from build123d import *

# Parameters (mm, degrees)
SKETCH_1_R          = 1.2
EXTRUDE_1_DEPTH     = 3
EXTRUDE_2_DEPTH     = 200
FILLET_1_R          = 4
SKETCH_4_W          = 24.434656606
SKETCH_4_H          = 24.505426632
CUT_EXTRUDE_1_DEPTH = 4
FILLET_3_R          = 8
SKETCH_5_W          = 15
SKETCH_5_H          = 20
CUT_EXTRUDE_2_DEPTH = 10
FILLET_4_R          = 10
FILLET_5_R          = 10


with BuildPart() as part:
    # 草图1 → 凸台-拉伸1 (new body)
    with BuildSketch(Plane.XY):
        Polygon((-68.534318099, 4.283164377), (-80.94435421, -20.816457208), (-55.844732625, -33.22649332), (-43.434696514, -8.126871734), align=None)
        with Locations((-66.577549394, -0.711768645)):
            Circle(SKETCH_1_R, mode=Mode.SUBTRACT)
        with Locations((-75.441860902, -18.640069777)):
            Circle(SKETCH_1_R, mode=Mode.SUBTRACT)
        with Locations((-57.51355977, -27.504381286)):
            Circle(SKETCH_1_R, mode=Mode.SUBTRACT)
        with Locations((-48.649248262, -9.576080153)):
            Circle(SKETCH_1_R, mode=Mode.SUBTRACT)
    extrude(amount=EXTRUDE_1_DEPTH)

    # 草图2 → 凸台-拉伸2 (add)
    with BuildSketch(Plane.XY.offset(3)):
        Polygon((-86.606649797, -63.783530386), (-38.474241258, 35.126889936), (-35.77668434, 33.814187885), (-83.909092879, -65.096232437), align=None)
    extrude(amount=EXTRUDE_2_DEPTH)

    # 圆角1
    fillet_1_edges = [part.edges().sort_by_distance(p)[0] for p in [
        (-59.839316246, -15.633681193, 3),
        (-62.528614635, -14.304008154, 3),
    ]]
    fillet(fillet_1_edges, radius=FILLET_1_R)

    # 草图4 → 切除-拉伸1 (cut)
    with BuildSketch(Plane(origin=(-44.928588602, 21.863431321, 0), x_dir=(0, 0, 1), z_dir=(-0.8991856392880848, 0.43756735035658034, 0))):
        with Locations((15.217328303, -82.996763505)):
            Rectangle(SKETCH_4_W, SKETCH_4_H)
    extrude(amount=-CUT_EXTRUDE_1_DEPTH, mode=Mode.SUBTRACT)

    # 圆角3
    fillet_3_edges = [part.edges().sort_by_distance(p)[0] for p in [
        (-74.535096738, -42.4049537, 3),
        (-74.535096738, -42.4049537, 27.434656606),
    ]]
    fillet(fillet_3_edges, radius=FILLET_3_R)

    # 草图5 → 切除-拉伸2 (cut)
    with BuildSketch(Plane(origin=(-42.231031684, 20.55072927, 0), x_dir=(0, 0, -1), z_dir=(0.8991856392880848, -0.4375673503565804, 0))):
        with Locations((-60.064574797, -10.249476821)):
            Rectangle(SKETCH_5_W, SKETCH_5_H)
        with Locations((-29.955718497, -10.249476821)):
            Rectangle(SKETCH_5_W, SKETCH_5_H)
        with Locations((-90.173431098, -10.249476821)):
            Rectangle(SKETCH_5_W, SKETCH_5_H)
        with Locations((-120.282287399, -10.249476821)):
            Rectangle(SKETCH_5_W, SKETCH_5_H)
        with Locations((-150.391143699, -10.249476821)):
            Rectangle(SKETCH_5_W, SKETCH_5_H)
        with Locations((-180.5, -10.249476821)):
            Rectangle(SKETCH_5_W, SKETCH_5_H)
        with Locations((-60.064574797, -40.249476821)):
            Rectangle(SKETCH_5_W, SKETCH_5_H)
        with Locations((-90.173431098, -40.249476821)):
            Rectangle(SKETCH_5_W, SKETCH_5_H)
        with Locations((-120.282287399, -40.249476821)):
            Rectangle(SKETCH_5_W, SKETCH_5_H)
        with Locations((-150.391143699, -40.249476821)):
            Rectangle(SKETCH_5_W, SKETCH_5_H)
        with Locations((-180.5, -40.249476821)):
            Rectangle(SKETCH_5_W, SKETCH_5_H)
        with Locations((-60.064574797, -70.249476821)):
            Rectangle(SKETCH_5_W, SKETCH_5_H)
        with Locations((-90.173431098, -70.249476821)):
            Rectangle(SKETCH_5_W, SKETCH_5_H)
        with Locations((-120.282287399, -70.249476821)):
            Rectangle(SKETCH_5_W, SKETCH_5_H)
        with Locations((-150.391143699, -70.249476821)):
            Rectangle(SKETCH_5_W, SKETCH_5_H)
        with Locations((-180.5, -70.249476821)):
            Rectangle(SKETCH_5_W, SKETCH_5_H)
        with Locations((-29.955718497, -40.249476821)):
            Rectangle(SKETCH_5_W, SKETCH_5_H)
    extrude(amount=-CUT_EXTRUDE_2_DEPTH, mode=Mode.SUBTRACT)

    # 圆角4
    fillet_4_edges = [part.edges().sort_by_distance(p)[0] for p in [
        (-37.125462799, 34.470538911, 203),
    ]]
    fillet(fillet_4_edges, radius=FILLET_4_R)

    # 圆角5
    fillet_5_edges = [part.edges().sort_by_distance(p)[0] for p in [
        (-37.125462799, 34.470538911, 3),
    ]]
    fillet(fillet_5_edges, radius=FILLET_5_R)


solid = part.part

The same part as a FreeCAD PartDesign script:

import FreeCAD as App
import Part
import Sketcher
from FreeCAD import Vector


def edges_at(feature, points):
    """Names of the edges that pass closest to the given points."""
    edges = feature.Shape.Edges
    near = lambda p: min(range(len(edges)), key=lambda i: edges[i].distToShape(Part.Vertex(*p))[0])
    return sorted({f"Edge{near(p) + 1}" for p in points})


def add_polygon(sketch, points):
    """Adds a closed chain of lines whose ends are joined by coincident constraints."""
    first, n = sketch.GeometryCount, len(points)
    for a, b in zip(points, points[1:] + points[:1]):
        sketch.addGeometry(Part.LineSegment(App.Vector(*a, 0), App.Vector(*b, 0)), False)
    for i in range(n):
        sketch.addConstraint(Sketcher.Constraint("Coincident", first + i, 2, first + (i + 1) % n, 1))

doc = App.newDocument("Part")
body = doc.addObject("PartDesign::Body", "Body")

# Sketch on XY plane
sketch1 = body.newObject("Sketcher::SketchObject", "Sketch")
sketch1.AttachmentSupport = (doc.getObject("XY_Plane"), [""])
sketch1.MapMode = "FlatFace"
add_polygon(sketch1, [(-68.5, 4.3), (-80.9, -20.8), (-55.8, -33.2), (-43.4, -8.1)])  # lines 0-3
sketch1.addGeometry(Part.Circle(Vector(-75.4, -18.6, 0), Vector(0, 0, 1), 1.2), False)  # 4
sketch1.addGeometry(Part.Circle(Vector(-57.5, -27.5, 0), Vector(0, 0, 1), 1.2), False)  # 5
sketch1.addGeometry(Part.Circle(Vector(-66.6, -0.7, 0), Vector(0, 0, 1), 1.2), False)  # 6
sketch1.addGeometry(Part.Circle(Vector(-48.6, -9.6, 0), Vector(0, 0, 1), 1.2), False)  # 7
sketch1.addConstraint([
    Sketcher.Constraint("Equal", 4, 5),
    Sketcher.Constraint("Equal", 5, 6),
    Sketcher.Constraint("Equal", 6, 7),
    Sketcher.Constraint("Perpendicular", 0, 1),
    Sketcher.Constraint("Perpendicular", 1, 2),
    Sketcher.Constraint("Perpendicular", 2, 3),
    Sketcher.Constraint("Equal", 0, 1),
    Sketcher.Constraint("Diameter", 4, 2.4),
    Sketcher.Constraint("Distance", 0, 28.0),
    Sketcher.Constraint("DistanceX", 4, 3, 5, 3, 17.928301),
    Sketcher.Constraint("DistanceY", 4, 3, 6, 3, 17.928301),
    Sketcher.Constraint("DistanceX", 6, 3, 7, 3, 17.928301),
    Sketcher.Constraint("DistanceY", 5, 3, 7, 3, 17.928301),
    Sketcher.Constraint("DistanceY", 4, 3, 2, 2, 10.513198),
    Sketcher.Constraint("DistanceX", 4, 3, -1, 1, 75.441861),
    Sketcher.Constraint("DistanceY", 4, 3, -1, 1, 18.64007),
    Sketcher.Constraint("DistanceY", 5, 3, -1, 1, 27.504381),
    Sketcher.Constraint("DistanceX", 6, 3, -1, 1, 66.577549),
    Sketcher.Constraint("DistanceX", 3, 2, -1, 1, 68.534318),
    Sketcher.Constraint("DistanceY", 0, 2, 6, 3, 20.104689),
])
pad1 = body.newObject("PartDesign::Pad", "Pad")
pad1.Profile = sketch1
pad1.Length = 3

# Sketch on XY plane
sketch2 = body.newObject("Sketcher::SketchObject", "Sketch001")
sketch2.AttachmentSupport = (doc.getObject("XY_Plane"), [""])
sketch2.MapMode = "FlatFace"
sketch2.AttachmentOffset = App.Placement(Vector(0, 0, 3), App.Rotation())
add_polygon(sketch2, [(-38.5, 35.1), (-86.6, -63.8), (-83.9, -65.1), (-35.8, 33.8)])  # lines 0-3
sketch2.addConstraint([
    Sketcher.Constraint("Perpendicular", 0, 1),
    Sketcher.Constraint("Perpendicular", 1, 2),
    Sketcher.Constraint("Perpendicular", 2, 3),
    Sketcher.Constraint("Distance", 0, 110.0),
    Sketcher.Constraint("Distance", 1, 3.0),
    Sketcher.Constraint("DistanceX", 0, 2, -1, 1, 86.60665),
    Sketcher.Constraint("DistanceY", 0, 2, -1, 1, 63.78353),
    Sketcher.Constraint("DistanceX", 3, 2, -1, 1, 38.474241),
])
pad2 = body.newObject("PartDesign::Pad", "Pad001")
pad2.Profile = sketch2
pad2.Length = 200
doc.recompute()

fillet = body.newObject("PartDesign::Fillet", "Fillet")
fillet.Base = (pad2, edges_at(pad2, [(-59.839, -15.634, 3), (-62.529, -14.304, 3)]))
fillet.Radius = 4

# Sketch on an angled plane
sketch3 = body.newObject("Sketcher::SketchObject", "Sketch002")
sketch3.Placement = App.Placement(Vector(-44.928589, 21.863431, 0), App.Rotation(Vector(0, 0, 1), Vector(0.43756735, 0.899185639, 0), Vector(-0.899185639, 0.43756735, 0), "ZXY"))
add_polygon(sketch3, [(3, -71), (3, -95), (27, -95), (27, -71)])  # lines 0-3
sketch3.addConstraint([
    Sketcher.Constraint("Vertical", 0),
    Sketcher.Constraint("Horizontal", 1),
    Sketcher.Constraint("Vertical", 2),
    Sketcher.Constraint("Horizontal", 3),
    Sketcher.Constraint("DistanceX", -1, 1, 0, 2, 3.0),
    Sketcher.Constraint("DistanceX", 1, 1, 1, 2, 24.434657),
    Sketcher.Constraint("DistanceY", 0, 2, 0, 1, 24.505427),
    Sketcher.Constraint("DistanceY", 2, 2, -1, 1, 70.74405),
])
pocket1 = body.newObject("PartDesign::Pocket", "Pocket")
pocket1.Profile = sketch3
pocket1.Length = 4
doc.recompute()

fillet2 = body.newObject("PartDesign::Fillet", "Fillet001")
fillet2.Base = (pocket1, edges_at(pocket1, [(-74.535, -42.405, 3), (-74.535, -42.405, 27.435)]))
fillet2.Radius = 8

# Sketch on an angled plane
sketch4 = body.newObject("Sketcher::SketchObject", "Sketch003")
sketch4.Placement = App.Placement(Vector(-42.231032, 20.550729, 0), App.Rotation(Vector(0, 0, -1), Vector(0.43756735, 0.899185639, 0), Vector(0.899185639, -0.43756735, 0), "ZXY"))
add_polygon(sketch4, [(-68, 0), (-68, -20), (-53, -20), (-53, 0)])  # lines 0-3
add_polygon(sketch4, [(-37, 0), (-37, -20), (-22, -20), (-22, 0)])  # lines 4-7
add_polygon(sketch4, [(-98, 0), (-98, -20), (-83, -20), (-83, 0)])  # lines 8-11
add_polygon(sketch4, [(-128, 0), (-128, -20), (-113, -20), (-113, 0)])  # lines 12-15
add_polygon(sketch4, [(-158, 0), (-158, -20), (-143, -20), (-143, 0)])  # lines 16-19
add_polygon(sketch4, [(-188, 0), (-188, -20), (-173, -20), (-173, 0)])  # lines 20-23
add_polygon(sketch4, [(-68, -30), (-68, -50), (-53, -50), (-53, -30)])  # lines 24-27
add_polygon(sketch4, [(-98, -30), (-98, -50), (-83, -50), (-83, -30)])  # lines 28-31
add_polygon(sketch4, [(-128, -30), (-128, -50), (-113, -50), (-113, -30)])  # lines 32-35
add_polygon(sketch4, [(-158, -30), (-158, -50), (-143, -50), (-143, -30)])  # lines 36-39
add_polygon(sketch4, [(-188, -30), (-188, -50), (-173, -50), (-173, -30)])  # lines 40-43
add_polygon(sketch4, [(-68, -60), (-68, -80), (-53, -80), (-53, -60)])  # lines 44-47
add_polygon(sketch4, [(-98, -60), (-98, -80), (-83, -80), (-83, -60)])  # lines 48-51
add_polygon(sketch4, [(-128, -60), (-128, -80), (-113, -80), (-113, -60)])  # lines 52-55
add_polygon(sketch4, [(-158, -60), (-158, -80), (-143, -80), (-143, -60)])  # lines 56-59
add_polygon(sketch4, [(-188, -60), (-188, -80), (-173, -80), (-173, -60)])  # lines 60-63
add_polygon(sketch4, [(-37, -30), (-37, -50), (-22, -50), (-22, -30)])  # lines 64-67
sketch4.addConstraint([
    Sketcher.Constraint("Vertical", 0),
    Sketcher.Constraint("Horizontal", 1),
    Sketcher.Constraint("Vertical", 2),
    Sketcher.Constraint("Horizontal", 3),
    Sketcher.Constraint("Vertical", 4),
    Sketcher.Constraint("Horizontal", 5),
    Sketcher.Constraint("Vertical", 6),
    Sketcher.Constraint("Horizontal", 7),
    Sketcher.Constraint("Vertical", 8),
    Sketcher.Constraint("Horizontal", 9),
    Sketcher.Constraint("Vertical", 10),
    Sketcher.Constraint("Horizontal", 11),
    Sketcher.Constraint("Vertical", 12),
    Sketcher.Constraint("Horizontal", 13),
    Sketcher.Constraint("Vertical", 14),
    Sketcher.Constraint("Horizontal", 15),
    Sketcher.Constraint("Vertical", 16),
    Sketcher.Constraint("Horizontal", 17),
    Sketcher.Constraint("Vertical", 18),
    Sketcher.Constraint("Horizontal", 19),
    Sketcher.Constraint("Vertical", 20),
    Sketcher.Constraint("Horizontal", 21),
    Sketcher.Constraint("Vertical", 22),
    Sketcher.Constraint("Horizontal", 23),
    Sketcher.Constraint("Vertical", 24),
    Sketcher.Constraint("Horizontal", 25),
    Sketcher.Constraint("Vertical", 26),
    Sketcher.Constraint("Horizontal", 27),
    Sketcher.Constraint("Vertical", 28),
    Sketcher.Constraint("Horizontal", 29),
    Sketcher.Constraint("Vertical", 30),
    Sketcher.Constraint("Horizontal", 31),
    Sketcher.Constraint("Vertical", 32),
    Sketcher.Constraint("Horizontal", 33),
    Sketcher.Constraint("Vertical", 34),
    Sketcher.Constraint("Horizontal", 35),
    Sketcher.Constraint("Vertical", 36),
    Sketcher.Constraint("Horizontal", 37),
    Sketcher.Constraint("Vertical", 38),
    Sketcher.Constraint("Horizontal", 39),
    Sketcher.Constraint("Vertical", 40),
    Sketcher.Constraint("Horizontal", 41),
    Sketcher.Constraint("Vertical", 42),
    Sketcher.Constraint("Horizontal", 43),
    Sketcher.Constraint("Vertical", 44),
    Sketcher.Constraint("Horizontal", 45),
    Sketcher.Constraint("Vertical", 46),
    Sketcher.Constraint("Horizontal", 47),
    Sketcher.Constraint("Vertical", 48),
    Sketcher.Constraint("Horizontal", 49),
    Sketcher.Constraint("Vertical", 50),
    Sketcher.Constraint("Horizontal", 51),
    Sketcher.Constraint("Vertical", 52),
    Sketcher.Constraint("Horizontal", 53),
    Sketcher.Constraint("Vertical", 54),
    Sketcher.Constraint("Horizontal", 55),
    Sketcher.Constraint("Vertical", 56),
    Sketcher.Constraint("Horizontal", 57),
    Sketcher.Constraint("Vertical", 58),
    Sketcher.Constraint("Horizontal", 59),
    Sketcher.Constraint("Vertical", 60),
    Sketcher.Constraint("Horizontal", 61),
    Sketcher.Constraint("Vertical", 62),
    Sketcher.Constraint("Horizontal", 63),
    Sketcher.Constraint("Vertical", 64),
    Sketcher.Constraint("Horizontal", 65),
    Sketcher.Constraint("Vertical", 66),
    Sketcher.Constraint("Horizontal", 67),
    Sketcher.Constraint("Horizontal", 1, 2, 4, 2),
    Sketcher.Constraint("Horizontal", 3, 2, 6, 2),
    Sketcher.Constraint("Horizontal", 5, 2, 8, 2),
    Sketcher.Constraint("Horizontal", 7, 2, 10, 2),
    Sketcher.Constraint("Horizontal", 9, 2, 12, 2),
    Sketcher.Constraint("Horizontal", 11, 2, 14, 2),
    Sketcher.Constraint("Horizontal", 13, 2, 16, 2),
    Sketcher.Constraint("Horizontal", 15, 2, 18, 2),
    Sketcher.Constraint("Horizontal", 17, 2, 20, 2),
    Sketcher.Constraint("Horizontal", 19, 2, 22, 2),
    Sketcher.Constraint("Horizontal", 25, 2, 28, 2),
    Sketcher.Constraint("Horizontal", 27, 2, 30, 2),
    Sketcher.Constraint("Horizontal", 29, 2, 32, 2),
    Sketcher.Constraint("Horizontal", 31, 2, 34, 2),
    Sketcher.Constraint("Horizontal", 33, 2, 36, 2),
    Sketcher.Constraint("Horizontal", 35, 2, 38, 2),
    Sketcher.Constraint("Horizontal", 37, 2, 40, 2),
    Sketcher.Constraint("Horizontal", 39, 2, 42, 2),
    Sketcher.Constraint("Horizontal", 45, 2, 48, 2),
    Sketcher.Constraint("Horizontal", 47, 2, 50, 2),
    Sketcher.Constraint("Horizontal", 49, 2, 52, 2),
    Sketcher.Constraint("Horizontal", 51, 2, 54, 2),
    Sketcher.Constraint("Horizontal", 53, 2, 56, 2),
    Sketcher.Constraint("Horizontal", 55, 2, 58, 2),
    Sketcher.Constraint("Horizontal", 57, 2, 60, 2),
    Sketcher.Constraint("Horizontal", 59, 2, 62, 2),
    Sketcher.Constraint("Horizontal", 41, 2, 64, 2),
    Sketcher.Constraint("Horizontal", 43, 2, 66, 2),
    Sketcher.Constraint("Vertical", 3, 2, 24, 2),
    Sketcher.Constraint("Vertical", 2, 2, 25, 2),
    Sketcher.Constraint("Vertical", 11, 2, 28, 2),
    Sketcher.Constraint("Vertical", 10, 2, 29, 2),
    Sketcher.Constraint("Vertical", 15, 2, 32, 2),
    Sketcher.Constraint("Vertical", 14, 2, 33, 2),
    Sketcher.Constraint("Vertical", 19, 2, 36, 2),
    Sketcher.Constraint("Vertical", 18, 2, 37, 2),
    Sketcher.Constraint("Vertical", 23, 2, 40, 2),
    Sketcher.Constraint("Vertical", 22, 2, 41, 2),
    Sketcher.Constraint("Vertical", 27, 2, 44, 2),
    Sketcher.Constraint("Vertical", 26, 2, 45, 2),
    Sketcher.Constraint("Vertical", 31, 2, 48, 2),
    Sketcher.Constraint("Vertical", 30, 2, 49, 2),
    Sketcher.Constraint("Vertical", 35, 2, 52, 2),
    Sketcher.Constraint("Vertical", 34, 2, 53, 2),
    Sketcher.Constraint("Vertical", 39, 2, 56, 2),
    Sketcher.Constraint("Vertical", 38, 2, 57, 2),
    Sketcher.Constraint("Vertical", 43, 2, 60, 2),
    Sketcher.Constraint("Vertical", 42, 2, 61, 2),
    Sketcher.Constraint("Vertical", 7, 2, 64, 2),
    Sketcher.Constraint("Vertical", 6, 2, 65, 2),
    Sketcher.Constraint("Equal", 3, 5),
    Sketcher.Constraint("Equal", 7, 9),
    Sketcher.Constraint("Equal", 11, 13),
    Sketcher.Constraint("Equal", 15, 17),
    Sketcher.Constraint("Equal", 19, 21),
    Sketcher.Constraint("Equal", 22, 24),
    Sketcher.Constraint("Equal", 42, 44),
    Sketcher.Constraint("DistanceX", 1, 1, 1, 2, 15.0),
    Sketcher.Constraint("DistanceY", 0, 2, 0, 1, 20.0),
    Sketcher.Constraint("DistanceX", 20, 2, -1, 1, 188.0),
    Sketcher.Constraint("DistanceX", 4, 2, -1, 1, 37.455718),
    Sketcher.Constraint("DistanceX", 8, 2, -1, 1, 97.673431),
    Sketcher.Constraint("DistanceX", 0, 2, -1, 1, 67.564575),
    Sketcher.Constraint("DistanceY", 0, 2, -1, 1, 20.249477),
    Sketcher.Constraint("DistanceX", 12, 2, -1, 1, 127.782287),
    Sketcher.Constraint("DistanceX", 16, 2, -1, 1, 157.891144),
    Sketcher.Constraint("DistanceY", 24, 2, -1, 1, 50.249477),
    Sketcher.Constraint("DistanceY", 44, 2, -1, 1, 80.249477),
])
pocket2 = body.newObject("PartDesign::Pocket", "Pocket001")
pocket2.Profile = sketch4
pocket2.Length = 10
doc.recompute()

fillet3 = body.newObject("PartDesign::Fillet", "Fillet002")
fillet3.Base = (pocket2, edges_at(pocket2, [(-37.125, 34.471, 203)]))
fillet3.Radius = 10
doc.recompute()

fillet4 = body.newObject("PartDesign::Fillet", "Fillet003")
fillet4.Base = (fillet3, edges_at(fillet3, [(-37.125, 34.471, 3)]))
fillet4.Radius = 10

doc.recompute()
